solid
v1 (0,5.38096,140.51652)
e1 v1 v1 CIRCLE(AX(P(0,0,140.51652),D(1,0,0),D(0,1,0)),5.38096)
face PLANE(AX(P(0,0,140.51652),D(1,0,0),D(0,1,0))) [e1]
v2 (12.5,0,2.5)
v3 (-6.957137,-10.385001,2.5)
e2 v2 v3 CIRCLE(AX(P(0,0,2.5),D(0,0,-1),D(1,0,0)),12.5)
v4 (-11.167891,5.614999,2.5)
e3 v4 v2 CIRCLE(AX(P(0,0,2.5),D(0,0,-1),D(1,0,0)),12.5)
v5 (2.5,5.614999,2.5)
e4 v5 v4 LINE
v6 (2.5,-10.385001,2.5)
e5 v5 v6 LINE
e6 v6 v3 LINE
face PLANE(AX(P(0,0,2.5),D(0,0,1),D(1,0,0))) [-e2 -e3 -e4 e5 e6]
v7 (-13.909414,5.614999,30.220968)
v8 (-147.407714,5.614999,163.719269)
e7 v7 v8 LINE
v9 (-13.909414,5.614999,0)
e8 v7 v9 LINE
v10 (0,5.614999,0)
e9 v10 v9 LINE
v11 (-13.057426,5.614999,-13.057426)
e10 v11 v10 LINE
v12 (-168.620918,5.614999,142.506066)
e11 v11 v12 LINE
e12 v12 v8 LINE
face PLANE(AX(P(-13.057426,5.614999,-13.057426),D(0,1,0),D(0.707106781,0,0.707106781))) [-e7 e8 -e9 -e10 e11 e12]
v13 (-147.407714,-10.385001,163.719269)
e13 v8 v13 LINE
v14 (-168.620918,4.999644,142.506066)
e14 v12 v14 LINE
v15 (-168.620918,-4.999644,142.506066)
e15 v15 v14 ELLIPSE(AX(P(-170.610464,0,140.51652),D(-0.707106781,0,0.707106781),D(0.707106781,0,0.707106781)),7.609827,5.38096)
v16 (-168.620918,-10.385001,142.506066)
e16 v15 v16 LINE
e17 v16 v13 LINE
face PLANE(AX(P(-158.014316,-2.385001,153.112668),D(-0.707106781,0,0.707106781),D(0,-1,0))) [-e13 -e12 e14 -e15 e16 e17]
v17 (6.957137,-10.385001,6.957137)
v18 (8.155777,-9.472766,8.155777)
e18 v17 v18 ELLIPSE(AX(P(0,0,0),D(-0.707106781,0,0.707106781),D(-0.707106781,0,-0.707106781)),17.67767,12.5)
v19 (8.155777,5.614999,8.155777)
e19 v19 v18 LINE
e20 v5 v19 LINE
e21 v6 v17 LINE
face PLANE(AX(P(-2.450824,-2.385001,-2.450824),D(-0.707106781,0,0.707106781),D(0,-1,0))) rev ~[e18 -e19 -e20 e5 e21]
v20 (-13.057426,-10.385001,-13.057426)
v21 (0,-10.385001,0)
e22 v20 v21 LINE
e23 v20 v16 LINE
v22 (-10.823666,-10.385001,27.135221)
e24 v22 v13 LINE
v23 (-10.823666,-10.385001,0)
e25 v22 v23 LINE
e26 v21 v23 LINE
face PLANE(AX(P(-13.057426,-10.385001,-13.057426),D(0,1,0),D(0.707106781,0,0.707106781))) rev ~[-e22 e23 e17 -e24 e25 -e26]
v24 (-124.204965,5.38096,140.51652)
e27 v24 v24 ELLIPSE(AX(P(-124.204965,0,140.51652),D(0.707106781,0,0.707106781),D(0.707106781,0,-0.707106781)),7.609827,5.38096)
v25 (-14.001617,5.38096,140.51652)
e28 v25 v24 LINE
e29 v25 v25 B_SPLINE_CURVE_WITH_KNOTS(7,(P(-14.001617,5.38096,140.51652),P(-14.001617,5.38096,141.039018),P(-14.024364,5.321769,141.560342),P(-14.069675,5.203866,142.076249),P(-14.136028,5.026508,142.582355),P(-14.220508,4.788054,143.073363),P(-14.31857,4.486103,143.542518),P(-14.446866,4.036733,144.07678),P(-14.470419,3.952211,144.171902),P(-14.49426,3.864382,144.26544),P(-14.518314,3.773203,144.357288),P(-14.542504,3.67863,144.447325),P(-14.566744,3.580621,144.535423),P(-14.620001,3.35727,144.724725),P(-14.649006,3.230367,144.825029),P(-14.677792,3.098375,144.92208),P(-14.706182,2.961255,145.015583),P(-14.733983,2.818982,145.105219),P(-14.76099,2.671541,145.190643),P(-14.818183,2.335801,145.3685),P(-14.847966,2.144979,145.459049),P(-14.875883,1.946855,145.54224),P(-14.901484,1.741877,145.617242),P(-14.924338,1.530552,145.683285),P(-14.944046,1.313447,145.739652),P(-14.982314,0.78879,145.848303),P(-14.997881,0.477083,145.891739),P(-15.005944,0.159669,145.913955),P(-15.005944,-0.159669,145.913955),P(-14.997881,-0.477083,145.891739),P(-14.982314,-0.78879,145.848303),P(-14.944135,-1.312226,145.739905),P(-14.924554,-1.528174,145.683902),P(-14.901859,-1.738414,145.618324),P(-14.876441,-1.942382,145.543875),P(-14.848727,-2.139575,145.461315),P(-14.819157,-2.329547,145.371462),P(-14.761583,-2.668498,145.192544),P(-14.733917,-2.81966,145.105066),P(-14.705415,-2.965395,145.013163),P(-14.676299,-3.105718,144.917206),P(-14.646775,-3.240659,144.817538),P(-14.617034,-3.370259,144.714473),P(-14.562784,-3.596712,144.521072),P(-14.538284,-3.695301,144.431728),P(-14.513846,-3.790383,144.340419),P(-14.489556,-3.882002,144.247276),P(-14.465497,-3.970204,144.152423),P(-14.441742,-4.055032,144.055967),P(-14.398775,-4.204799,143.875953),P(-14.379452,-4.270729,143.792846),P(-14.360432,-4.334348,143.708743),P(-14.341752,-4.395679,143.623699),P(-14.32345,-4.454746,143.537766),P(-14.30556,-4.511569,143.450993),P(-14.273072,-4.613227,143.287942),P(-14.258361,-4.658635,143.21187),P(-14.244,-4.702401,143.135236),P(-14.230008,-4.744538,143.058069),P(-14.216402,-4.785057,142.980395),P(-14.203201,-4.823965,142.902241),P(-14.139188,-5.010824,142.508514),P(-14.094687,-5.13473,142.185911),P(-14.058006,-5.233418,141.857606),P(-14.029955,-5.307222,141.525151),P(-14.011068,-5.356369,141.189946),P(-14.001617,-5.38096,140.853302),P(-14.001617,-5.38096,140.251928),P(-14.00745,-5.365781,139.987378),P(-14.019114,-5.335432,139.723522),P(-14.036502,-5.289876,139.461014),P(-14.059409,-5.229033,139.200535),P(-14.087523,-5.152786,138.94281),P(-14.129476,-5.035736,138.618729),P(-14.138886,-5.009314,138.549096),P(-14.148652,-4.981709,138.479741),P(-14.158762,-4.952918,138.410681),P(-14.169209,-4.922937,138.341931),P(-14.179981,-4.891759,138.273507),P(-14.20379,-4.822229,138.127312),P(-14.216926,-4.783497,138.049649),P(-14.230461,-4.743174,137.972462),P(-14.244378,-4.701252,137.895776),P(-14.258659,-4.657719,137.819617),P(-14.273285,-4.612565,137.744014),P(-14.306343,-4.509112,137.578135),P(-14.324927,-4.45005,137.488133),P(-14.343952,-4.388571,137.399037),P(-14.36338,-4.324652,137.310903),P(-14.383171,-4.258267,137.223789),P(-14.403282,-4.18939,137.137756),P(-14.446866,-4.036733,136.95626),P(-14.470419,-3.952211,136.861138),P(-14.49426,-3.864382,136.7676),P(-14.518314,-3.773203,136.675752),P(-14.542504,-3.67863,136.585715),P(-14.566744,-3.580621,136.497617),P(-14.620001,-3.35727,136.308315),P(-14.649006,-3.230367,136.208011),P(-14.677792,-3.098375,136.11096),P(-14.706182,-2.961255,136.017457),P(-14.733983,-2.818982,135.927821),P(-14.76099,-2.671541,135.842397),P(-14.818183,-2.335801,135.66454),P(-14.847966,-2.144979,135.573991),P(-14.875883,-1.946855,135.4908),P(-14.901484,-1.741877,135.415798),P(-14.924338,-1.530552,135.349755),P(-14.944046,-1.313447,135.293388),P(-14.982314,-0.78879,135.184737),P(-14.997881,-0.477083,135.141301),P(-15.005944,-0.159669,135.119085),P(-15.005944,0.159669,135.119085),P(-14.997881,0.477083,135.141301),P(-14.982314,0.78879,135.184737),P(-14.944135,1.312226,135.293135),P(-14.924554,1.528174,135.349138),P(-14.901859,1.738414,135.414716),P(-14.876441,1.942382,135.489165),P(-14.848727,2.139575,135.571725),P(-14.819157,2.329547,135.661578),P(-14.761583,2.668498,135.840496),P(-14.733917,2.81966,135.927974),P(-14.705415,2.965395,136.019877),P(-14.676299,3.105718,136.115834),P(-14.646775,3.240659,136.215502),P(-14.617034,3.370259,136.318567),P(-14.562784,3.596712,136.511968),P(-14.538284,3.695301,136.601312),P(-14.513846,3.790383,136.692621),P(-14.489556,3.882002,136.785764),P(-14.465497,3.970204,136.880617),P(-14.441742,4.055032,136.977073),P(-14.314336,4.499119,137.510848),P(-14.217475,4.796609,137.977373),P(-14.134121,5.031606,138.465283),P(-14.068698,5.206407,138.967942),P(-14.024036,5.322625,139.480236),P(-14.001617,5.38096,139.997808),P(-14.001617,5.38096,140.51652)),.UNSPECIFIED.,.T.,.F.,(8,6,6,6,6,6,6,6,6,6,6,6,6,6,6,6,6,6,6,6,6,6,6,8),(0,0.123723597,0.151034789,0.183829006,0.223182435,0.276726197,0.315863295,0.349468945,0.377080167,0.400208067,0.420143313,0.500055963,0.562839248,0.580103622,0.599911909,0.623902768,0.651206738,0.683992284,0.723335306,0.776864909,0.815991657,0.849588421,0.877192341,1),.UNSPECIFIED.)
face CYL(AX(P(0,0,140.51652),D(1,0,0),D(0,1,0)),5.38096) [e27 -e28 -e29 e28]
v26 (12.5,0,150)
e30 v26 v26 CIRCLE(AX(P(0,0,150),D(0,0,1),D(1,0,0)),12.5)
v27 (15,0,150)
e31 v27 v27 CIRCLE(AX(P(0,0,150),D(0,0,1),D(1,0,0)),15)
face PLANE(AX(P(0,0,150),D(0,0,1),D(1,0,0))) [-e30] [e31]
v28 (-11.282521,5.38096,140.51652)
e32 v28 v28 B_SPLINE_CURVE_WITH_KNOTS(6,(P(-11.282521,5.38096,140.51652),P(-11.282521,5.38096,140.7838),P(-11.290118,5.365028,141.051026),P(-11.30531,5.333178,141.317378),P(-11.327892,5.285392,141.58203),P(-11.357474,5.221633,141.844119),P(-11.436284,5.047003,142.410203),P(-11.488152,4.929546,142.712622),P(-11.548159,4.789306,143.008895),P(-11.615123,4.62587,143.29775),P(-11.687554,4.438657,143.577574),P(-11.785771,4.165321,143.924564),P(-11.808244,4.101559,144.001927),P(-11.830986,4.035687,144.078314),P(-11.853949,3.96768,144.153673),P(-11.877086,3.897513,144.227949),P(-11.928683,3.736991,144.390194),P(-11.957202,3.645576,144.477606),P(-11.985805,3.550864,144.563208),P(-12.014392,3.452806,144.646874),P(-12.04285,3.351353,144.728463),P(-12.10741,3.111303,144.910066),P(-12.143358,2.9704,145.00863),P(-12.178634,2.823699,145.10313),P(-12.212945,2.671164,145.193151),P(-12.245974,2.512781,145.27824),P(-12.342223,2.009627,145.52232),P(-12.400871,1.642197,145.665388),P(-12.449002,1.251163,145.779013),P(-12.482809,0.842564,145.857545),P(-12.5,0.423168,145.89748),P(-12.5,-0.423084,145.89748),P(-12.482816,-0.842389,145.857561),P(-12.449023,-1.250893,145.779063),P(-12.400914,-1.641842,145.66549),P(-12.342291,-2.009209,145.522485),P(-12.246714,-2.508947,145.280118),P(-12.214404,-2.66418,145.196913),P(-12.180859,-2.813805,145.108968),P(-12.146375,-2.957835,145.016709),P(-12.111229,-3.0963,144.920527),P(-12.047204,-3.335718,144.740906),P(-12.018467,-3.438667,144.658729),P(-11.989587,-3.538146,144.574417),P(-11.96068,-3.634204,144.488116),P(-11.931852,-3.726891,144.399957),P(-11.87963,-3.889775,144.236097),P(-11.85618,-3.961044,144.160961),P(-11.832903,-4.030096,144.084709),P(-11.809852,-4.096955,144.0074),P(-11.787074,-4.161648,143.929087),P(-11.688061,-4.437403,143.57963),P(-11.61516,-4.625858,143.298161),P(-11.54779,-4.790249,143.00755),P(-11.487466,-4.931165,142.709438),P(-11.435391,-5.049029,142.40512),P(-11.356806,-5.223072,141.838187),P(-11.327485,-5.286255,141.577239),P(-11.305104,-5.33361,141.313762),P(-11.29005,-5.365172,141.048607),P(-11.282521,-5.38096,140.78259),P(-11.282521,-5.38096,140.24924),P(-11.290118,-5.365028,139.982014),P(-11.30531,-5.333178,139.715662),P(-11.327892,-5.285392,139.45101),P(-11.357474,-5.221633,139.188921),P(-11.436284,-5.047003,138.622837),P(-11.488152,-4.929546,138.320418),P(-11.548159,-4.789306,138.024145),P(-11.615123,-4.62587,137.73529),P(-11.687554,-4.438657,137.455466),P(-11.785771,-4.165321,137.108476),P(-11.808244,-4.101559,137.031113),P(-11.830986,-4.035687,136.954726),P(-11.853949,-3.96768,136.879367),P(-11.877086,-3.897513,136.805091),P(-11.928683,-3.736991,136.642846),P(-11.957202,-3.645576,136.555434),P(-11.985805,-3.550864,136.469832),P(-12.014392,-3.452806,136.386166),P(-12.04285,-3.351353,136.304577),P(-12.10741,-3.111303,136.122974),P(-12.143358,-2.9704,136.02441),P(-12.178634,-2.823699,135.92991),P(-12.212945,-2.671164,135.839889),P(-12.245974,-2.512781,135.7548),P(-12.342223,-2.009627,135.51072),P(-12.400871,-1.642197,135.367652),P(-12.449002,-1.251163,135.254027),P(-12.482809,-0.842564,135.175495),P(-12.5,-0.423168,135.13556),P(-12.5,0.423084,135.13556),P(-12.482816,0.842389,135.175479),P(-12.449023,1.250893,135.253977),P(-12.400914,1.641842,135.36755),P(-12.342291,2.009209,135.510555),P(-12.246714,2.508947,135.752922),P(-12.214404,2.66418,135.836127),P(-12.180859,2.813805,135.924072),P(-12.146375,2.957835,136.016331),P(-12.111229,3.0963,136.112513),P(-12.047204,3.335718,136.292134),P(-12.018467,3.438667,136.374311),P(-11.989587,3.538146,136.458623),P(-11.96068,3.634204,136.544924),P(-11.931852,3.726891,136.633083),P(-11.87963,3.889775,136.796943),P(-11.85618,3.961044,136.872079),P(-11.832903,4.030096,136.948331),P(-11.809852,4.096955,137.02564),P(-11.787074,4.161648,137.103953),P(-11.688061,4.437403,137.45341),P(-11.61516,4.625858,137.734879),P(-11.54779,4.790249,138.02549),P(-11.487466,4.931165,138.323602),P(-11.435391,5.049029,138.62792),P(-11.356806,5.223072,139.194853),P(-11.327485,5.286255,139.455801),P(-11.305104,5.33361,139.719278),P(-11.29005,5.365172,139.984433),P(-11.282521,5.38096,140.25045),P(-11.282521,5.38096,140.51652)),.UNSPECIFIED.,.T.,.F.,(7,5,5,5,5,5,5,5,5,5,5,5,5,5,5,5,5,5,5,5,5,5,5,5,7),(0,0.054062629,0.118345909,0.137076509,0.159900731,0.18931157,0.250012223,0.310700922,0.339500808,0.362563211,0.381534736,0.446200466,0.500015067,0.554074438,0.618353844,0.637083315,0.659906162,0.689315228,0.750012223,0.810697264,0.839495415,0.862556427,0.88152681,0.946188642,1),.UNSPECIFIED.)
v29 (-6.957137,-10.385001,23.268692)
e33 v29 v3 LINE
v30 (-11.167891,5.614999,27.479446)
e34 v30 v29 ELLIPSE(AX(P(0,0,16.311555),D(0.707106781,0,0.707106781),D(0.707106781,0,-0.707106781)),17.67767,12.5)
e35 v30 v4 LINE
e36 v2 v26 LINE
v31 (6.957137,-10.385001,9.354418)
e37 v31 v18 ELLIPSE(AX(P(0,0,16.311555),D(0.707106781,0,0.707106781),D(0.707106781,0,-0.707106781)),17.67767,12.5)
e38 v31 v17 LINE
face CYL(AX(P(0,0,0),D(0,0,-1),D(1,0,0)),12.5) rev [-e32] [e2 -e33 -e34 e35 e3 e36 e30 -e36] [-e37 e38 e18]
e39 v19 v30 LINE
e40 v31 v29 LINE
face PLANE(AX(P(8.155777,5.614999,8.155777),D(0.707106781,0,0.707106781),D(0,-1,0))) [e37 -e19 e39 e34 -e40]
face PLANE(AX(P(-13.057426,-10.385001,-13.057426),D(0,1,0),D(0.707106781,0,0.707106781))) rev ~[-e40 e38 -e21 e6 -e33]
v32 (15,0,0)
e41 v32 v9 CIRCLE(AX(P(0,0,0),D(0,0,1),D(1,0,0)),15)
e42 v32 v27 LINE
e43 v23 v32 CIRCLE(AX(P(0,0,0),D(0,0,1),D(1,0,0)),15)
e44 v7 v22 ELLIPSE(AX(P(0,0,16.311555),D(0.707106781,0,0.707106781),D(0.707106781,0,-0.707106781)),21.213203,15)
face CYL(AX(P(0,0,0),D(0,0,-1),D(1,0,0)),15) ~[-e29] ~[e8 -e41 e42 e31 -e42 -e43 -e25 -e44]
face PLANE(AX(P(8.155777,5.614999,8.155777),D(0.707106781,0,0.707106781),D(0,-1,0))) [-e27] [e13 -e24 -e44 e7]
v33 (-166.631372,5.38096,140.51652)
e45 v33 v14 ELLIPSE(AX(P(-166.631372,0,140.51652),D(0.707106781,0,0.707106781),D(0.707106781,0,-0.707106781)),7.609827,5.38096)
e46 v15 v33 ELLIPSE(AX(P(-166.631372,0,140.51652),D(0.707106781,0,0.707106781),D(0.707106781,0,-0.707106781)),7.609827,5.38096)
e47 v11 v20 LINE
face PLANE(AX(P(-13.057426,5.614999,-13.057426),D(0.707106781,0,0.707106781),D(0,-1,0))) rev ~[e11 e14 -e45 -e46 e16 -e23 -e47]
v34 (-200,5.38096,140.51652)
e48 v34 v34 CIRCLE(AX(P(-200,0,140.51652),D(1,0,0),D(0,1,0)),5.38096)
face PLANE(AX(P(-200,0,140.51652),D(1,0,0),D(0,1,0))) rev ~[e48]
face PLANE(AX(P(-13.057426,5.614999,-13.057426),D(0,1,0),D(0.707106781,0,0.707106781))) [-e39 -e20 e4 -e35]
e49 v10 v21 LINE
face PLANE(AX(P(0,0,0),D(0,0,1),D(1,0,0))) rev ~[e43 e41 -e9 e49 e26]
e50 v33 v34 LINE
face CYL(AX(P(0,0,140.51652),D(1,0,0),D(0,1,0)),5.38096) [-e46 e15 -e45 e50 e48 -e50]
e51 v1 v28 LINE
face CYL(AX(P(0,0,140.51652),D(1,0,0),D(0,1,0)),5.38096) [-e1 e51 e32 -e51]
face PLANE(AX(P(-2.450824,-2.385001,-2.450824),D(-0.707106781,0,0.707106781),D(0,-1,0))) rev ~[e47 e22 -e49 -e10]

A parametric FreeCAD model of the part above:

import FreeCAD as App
import Part
import Sketcher

V = App.Vector


def faces_at(feature, points):
    """Names of the faces that lie closest to the given points."""
    faces = feature.Shape.Faces
    near = lambda p: min(range(len(faces)), key=lambda i: faces[i].distToShape(Part.Vertex(*p))[0])
    return sorted({f"Face{near(p) + 1}" for p in points})


def add_polygon(sketch, points):
    """Adds a closed chain of lines whose ends are joined by coincident constraints."""
    first, n = sketch.GeometryCount, len(points)
    for a, b in zip(points, points[1:] + points[:1]):
        sketch.addGeometry(Part.LineSegment(App.Vector(*a, 0), App.Vector(*b, 0)), False)
    for i in range(n):
        sketch.addConstraint(Sketcher.Constraint("Coincident", first + i, 2, first + (i + 1) % n, 1))

doc = App.newDocument("Part")
body = doc.addObject("PartDesign::Body", "Body")

sketch1 = body.newObject("Sketcher::SketchObject", "Sketch")
sketch1.AttachmentSupport = (doc.getObject("XY_Plane"), [""])
sketch1.MapMode = "FlatFace"
sketch1.addGeometry(Part.Circle(V(0, 0, 0), V(0, 0, 1), 15), False)
sketch1.addConstraint(Sketcher.Constraint("Coincident", 0, 3, -1, 1))
sketch1.addConstraint(Sketcher.Constraint("Diameter", 0, 30.0))
pad1 = body.newObject("PartDesign::Pad", "Pad")
pad1.Profile = sketch1
pad1.Length = 150
doc.recompute()

thickness = body.newObject("PartDesign::Thickness", "Thickness")
thickness.Base = (pad1, faces_at(pad1, [(0, 0, 150)]))
thickness.Value = 2.5
thickness.Reversed = True
thickness.Join = "Arc"

sketch2 = body.newObject("Sketcher::SketchObject", "Sketch001")
sketch2.Placement = App.Placement(V(0, 0, 0), App.Rotation(V(0, -1, 0), V(0.707106781, 0, 0.707106781), V(-0.707106781, 0, 0.707106781), "ZXY"))
add_polygon(sketch2, [(-6, 12), (-6, -18), (10, -18), (10, 12)])
sketch2.addConstraint(Sketcher.Constraint("Vertical", 0))
sketch2.addConstraint(Sketcher.Constraint("Horizontal", 1))
sketch2.addConstraint(Sketcher.Constraint("Vertical", 2))
sketch2.addConstraint(Sketcher.Constraint("Horizontal", 3))
sketch2.addConstraint(Sketcher.Constraint("DistanceX", 1, 1, 1, 2, 16.0))
sketch2.addConstraint(Sketcher.Constraint("DistanceY", 0, 2, 0, 1, 30.0))
sketch2.addConstraint(Sketcher.Constraint("DistanceX", 0, 2, -1, 1, 5.614999))
sketch2.addConstraint(Sketcher.Constraint("DistanceY", 0, 2, -1, 1, 18.465989))
pad2 = body.newObject("PartDesign::Pad", "Pad001")
pad2.Profile = sketch2
pad2.Length = 220

sketch3 = body.newObject("Sketcher::SketchObject", "Sketch002")
sketch3.AttachmentSupport = (doc.getObject("YZ_Plane"), [""])
sketch3.MapMode = "FlatFace"
sketch3.addGeometry(Part.Circle(V(0, 141, 0), V(0, 0, 1), 5), False)
sketch3.addConstraint(Sketcher.Constraint("PointOnObject", 0, 3, -2))
sketch3.addConstraint(Sketcher.Constraint("Diameter", 0, 10.76192))
sketch3.addConstraint(Sketcher.Constraint("DistanceY", -1, 1, 0, 3, 140.51652))
pad3 = body.newObject("PartDesign::Pad", "Pad002")
pad3.Profile = sketch3
pad3.Length = 200
pad3.Reversed = True

doc.recompute()
